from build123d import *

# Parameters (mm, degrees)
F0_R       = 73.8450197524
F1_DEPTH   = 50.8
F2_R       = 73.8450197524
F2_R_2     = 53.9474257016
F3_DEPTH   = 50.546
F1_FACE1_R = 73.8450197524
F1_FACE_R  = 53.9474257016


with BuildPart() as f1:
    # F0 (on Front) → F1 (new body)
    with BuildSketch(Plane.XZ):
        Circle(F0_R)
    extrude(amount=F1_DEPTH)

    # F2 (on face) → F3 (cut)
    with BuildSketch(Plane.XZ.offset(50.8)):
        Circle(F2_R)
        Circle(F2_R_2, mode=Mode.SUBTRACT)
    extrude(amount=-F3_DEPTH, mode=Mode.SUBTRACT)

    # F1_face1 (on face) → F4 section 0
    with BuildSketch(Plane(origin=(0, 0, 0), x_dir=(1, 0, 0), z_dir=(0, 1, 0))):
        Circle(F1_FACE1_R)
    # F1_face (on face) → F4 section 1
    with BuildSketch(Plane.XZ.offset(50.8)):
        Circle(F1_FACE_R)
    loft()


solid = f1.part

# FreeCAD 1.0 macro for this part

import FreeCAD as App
import Part
import Sketcher
Q = App.Units.Quantity

doc = App.newDocument("Part")
body = doc.addObject("PartDesign::Body", "Body")

# Sketch on XZ plane
sketch1 = body.newObject("Sketcher::SketchObject", "Sketch")
sketch1.AttachmentSupport = (doc.getObject("XZ_Plane"), [""])
sketch1.MapMode = "FlatFace"
sketch1.addGeometry(Part.Circle(App.Vector(0, 0, 0), App.Vector(0, 0, 1), 74), False)
sketch1.addConstraint(Sketcher.Constraint("Coincident", 0, 3, -1, 1))
sketch1.addConstraint(Sketcher.Constraint("Diameter", 0, Q("147.69004 mm")))
pad1 = body.newObject("PartDesign::Pad", "Pad")
pad1.Profile = sketch1
pad1.Length = Q("2 in")

# Sketch on XZ plane
sketch2 = body.newObject("Sketcher::SketchObject", "Sketch001")
sketch2.AttachmentSupport = (doc.getObject("XZ_Plane"), [""])
sketch2.MapMode = "FlatFace"
sketch2.AttachmentOffset = App.Placement(App.Vector(0, 0, 2 * 25.4), App.Rotation())
sketch2.addGeometry(Part.Circle(App.Vector(0, 0, 0), App.Vector(0, 0, 1), 74), False)
sketch2.addGeometry(Part.Circle(App.Vector(0, 0, 0), App.Vector(0, 0, 1), 54), False)
sketch2.addConstraint(Sketcher.Constraint("Coincident", 0, 3, -1, 1))
sketch2.addConstraint(Sketcher.Constraint("Coincident", 1, 3, -1, 1))
sketch2.addConstraint(Sketcher.Constraint("Diameter", 0, Q("147.69004 mm")))
sketch2.addConstraint(Sketcher.Constraint("Diameter", 1, Q("107.894851 mm")))
pocket1 = body.newObject("PartDesign::Pocket", "Pocket")
pocket1.Profile = sketch2
pocket1.Length = Q("1.99 in")

# Sketch on XZ plane
sketch3 = body.newObject("Sketcher::SketchObject", "Sketch002")
sketch3.AttachmentSupport = (doc.getObject("XZ_Plane"), [""])
sketch3.MapMode = "FlatFace"
sketch3.addGeometry(Part.Circle(App.Vector(0, 0, 0), App.Vector(0, 0, 1), 74), False)
sketch3.addConstraint(Sketcher.Constraint("Coincident", 0, 3, -1, 1))
sketch3.addConstraint(Sketcher.Constraint("Diameter", 0, Q("147.69004 mm")))

# Sketch on XZ plane
sketch4 = body.newObject("Sketcher::SketchObject", "Sketch003")
sketch4.AttachmentSupport = (doc.getObject("XZ_Plane"), [""])
sketch4.MapMode = "FlatFace"
sketch4.AttachmentOffset = App.Placement(App.Vector(0, 0, 2 * 25.4), App.Rotation())
sketch4.addGeometry(Part.Circle(App.Vector(0, 0, 0), App.Vector(0, 0, 1), 54), False)
sketch4.addConstraint(Sketcher.Constraint("Coincident", 0, 3, -1, 1))
sketch4.addConstraint(Sketcher.Constraint("Diameter", 0, Q("107.894851 mm")))

additiveloft = body.newObject("PartDesign::AdditiveLoft", "AdditiveLoft")
additiveloft.Profile = sketch3
additiveloft.Sections = [sketch4]

doc.recompute()
